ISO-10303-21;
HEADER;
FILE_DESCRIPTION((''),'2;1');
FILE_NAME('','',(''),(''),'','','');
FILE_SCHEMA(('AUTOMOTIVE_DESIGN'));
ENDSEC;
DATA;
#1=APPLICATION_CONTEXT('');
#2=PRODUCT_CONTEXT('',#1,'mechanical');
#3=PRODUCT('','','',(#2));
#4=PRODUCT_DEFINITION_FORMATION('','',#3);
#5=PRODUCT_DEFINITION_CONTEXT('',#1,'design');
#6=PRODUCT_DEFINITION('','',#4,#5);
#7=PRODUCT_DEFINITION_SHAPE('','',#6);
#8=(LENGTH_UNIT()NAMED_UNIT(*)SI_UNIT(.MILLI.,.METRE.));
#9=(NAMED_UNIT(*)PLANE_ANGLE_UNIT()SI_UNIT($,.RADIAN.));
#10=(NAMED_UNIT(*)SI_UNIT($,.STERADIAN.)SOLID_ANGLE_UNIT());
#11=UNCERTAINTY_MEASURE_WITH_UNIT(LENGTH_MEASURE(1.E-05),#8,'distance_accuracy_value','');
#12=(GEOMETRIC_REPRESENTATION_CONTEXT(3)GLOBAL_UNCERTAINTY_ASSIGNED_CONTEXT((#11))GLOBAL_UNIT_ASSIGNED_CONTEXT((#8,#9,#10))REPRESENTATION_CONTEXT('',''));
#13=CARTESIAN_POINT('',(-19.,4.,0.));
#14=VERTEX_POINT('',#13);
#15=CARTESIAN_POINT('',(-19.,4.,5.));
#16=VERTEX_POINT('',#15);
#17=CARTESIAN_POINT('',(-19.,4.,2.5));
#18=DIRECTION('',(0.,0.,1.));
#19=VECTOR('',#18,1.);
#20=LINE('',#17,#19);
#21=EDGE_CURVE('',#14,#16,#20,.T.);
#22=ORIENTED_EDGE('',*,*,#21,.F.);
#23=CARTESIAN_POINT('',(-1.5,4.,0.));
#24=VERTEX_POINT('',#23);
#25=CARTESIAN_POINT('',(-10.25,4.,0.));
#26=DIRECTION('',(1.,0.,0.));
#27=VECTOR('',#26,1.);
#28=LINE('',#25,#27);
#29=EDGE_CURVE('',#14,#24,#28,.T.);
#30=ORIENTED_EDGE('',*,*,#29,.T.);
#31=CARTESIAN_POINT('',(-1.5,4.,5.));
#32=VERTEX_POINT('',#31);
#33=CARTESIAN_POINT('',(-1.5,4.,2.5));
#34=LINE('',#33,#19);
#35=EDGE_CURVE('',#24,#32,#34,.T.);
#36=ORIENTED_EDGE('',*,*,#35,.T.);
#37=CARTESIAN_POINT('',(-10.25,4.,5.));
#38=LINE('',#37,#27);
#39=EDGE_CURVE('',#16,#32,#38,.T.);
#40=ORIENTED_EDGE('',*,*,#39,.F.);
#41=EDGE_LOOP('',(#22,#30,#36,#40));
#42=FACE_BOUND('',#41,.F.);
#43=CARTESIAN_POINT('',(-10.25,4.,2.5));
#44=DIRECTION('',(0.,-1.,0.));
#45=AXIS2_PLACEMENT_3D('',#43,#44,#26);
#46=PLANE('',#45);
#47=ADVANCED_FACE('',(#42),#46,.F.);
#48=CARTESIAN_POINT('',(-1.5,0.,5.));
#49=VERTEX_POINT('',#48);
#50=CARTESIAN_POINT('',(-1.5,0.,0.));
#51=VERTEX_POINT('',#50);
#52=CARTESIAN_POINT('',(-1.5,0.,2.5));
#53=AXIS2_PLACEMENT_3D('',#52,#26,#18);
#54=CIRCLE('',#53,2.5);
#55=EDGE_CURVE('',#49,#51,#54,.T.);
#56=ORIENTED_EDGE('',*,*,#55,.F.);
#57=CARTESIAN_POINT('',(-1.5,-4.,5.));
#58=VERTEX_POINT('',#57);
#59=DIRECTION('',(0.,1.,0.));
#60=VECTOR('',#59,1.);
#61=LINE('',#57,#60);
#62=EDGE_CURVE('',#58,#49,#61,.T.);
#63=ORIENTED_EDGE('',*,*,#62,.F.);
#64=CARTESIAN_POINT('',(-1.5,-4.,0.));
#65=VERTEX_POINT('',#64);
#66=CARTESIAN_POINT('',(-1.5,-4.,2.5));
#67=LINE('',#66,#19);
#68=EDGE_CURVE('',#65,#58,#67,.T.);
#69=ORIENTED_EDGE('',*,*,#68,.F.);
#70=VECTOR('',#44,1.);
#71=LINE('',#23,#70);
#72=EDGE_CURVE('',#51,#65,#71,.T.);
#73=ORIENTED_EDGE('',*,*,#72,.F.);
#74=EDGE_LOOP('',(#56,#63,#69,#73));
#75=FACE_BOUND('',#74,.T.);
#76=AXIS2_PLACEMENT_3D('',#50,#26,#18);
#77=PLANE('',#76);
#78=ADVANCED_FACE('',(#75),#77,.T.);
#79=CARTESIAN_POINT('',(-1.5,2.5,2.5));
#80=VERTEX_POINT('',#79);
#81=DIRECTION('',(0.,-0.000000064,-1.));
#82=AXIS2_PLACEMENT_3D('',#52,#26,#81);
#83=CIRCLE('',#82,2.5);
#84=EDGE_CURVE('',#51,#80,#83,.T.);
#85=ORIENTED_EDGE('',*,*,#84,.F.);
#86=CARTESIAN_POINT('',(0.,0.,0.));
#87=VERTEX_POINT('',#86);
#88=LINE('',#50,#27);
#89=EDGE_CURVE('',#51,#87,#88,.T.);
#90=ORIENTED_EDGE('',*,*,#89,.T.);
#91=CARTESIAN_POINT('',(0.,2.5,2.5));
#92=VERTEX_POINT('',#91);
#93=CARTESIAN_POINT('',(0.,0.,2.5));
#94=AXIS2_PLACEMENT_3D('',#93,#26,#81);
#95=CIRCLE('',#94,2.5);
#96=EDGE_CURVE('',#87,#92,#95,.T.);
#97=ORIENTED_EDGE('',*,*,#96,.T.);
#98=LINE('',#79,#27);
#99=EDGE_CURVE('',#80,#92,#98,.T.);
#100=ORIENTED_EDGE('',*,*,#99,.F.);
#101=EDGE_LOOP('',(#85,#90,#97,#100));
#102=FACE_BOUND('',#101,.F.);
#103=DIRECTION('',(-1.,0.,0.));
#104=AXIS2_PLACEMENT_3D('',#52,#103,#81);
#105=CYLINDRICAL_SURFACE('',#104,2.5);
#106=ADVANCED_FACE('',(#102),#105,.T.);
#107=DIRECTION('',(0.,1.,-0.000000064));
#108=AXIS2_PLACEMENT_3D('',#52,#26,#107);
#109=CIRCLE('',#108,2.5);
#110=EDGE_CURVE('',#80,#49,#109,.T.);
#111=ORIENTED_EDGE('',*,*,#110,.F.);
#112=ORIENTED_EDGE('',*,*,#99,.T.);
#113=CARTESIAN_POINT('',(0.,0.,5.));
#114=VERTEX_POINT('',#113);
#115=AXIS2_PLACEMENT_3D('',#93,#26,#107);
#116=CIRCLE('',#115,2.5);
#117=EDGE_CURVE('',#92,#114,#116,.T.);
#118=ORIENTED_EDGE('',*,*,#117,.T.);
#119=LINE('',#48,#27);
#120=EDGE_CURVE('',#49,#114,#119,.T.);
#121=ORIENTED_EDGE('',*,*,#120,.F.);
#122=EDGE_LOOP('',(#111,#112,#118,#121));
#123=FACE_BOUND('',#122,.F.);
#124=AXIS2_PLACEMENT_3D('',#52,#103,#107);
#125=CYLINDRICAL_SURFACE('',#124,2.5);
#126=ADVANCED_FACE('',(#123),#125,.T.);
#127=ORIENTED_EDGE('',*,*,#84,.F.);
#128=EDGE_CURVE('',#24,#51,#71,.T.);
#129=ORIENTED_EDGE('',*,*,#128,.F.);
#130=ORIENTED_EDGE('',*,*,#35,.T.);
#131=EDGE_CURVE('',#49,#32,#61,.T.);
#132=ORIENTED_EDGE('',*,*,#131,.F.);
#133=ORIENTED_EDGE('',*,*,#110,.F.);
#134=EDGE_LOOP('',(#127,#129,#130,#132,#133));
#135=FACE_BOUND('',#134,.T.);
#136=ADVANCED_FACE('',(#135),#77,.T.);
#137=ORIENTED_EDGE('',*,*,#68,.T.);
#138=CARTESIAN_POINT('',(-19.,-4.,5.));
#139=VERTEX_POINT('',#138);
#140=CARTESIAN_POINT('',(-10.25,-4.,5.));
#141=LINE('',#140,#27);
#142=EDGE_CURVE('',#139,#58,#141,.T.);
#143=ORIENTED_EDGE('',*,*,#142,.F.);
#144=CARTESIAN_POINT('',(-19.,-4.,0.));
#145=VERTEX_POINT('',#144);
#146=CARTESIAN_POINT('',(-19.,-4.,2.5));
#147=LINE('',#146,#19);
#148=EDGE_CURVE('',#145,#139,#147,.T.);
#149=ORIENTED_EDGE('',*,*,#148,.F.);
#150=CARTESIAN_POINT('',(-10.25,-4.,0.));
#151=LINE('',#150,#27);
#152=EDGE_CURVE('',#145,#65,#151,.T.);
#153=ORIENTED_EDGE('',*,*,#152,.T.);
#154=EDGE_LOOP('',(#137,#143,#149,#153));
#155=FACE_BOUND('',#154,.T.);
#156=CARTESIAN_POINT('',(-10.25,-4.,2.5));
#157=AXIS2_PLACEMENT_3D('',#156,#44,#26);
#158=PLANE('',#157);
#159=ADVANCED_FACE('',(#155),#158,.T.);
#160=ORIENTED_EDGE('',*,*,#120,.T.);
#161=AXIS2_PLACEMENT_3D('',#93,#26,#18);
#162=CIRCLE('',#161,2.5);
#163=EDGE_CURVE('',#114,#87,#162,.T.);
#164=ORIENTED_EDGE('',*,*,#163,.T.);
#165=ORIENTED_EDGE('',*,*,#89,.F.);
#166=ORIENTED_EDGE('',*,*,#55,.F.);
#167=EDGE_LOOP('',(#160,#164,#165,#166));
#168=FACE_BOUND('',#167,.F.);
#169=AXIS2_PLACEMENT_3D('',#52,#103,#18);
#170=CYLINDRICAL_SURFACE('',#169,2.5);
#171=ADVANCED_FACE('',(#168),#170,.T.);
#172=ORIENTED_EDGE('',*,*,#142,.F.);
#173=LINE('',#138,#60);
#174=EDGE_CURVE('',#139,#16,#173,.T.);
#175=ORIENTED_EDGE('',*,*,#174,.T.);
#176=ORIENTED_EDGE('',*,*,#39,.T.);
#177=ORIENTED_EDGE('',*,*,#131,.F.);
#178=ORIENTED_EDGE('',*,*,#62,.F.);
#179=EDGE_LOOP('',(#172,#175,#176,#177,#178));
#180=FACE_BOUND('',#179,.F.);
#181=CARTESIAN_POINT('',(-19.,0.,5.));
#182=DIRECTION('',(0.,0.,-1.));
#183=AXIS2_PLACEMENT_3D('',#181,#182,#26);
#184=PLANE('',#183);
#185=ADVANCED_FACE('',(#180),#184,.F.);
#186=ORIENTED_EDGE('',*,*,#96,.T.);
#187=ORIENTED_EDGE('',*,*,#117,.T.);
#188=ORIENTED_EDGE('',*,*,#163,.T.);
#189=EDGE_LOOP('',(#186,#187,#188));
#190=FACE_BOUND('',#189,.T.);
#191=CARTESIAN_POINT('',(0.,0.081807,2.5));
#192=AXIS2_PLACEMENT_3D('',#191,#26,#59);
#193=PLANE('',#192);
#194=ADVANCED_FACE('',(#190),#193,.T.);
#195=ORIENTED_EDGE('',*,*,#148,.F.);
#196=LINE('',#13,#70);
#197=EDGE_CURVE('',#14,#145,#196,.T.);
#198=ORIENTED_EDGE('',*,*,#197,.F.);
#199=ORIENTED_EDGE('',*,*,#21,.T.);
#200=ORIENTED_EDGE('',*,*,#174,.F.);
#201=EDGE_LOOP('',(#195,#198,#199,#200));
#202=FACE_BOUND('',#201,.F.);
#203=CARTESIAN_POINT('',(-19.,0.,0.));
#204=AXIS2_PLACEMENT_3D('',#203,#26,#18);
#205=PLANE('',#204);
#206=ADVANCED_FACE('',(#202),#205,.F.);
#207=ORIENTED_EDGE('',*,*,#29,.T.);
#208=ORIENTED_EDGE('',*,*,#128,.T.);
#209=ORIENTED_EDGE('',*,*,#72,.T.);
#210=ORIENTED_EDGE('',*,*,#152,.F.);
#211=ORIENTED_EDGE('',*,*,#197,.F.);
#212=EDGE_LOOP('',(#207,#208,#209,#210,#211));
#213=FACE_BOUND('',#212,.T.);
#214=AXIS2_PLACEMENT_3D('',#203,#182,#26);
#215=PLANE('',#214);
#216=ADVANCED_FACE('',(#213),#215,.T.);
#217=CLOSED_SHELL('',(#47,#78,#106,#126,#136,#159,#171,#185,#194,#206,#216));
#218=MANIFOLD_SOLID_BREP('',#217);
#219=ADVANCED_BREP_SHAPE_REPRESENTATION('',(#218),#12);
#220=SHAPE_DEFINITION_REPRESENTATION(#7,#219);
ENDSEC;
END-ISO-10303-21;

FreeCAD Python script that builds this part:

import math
import FreeCAD as App
import Part
import Sketcher
from FreeCAD import Vector
Q = App.Units.Quantity


def add_polygon(sketch, points):
    """Adds a closed chain of lines whose ends are joined by coincident constraints."""
    first, n = sketch.GeometryCount, len(points)
    for a, b in zip(points, points[1:] + points[:1]):
        sketch.addGeometry(Part.LineSegment(App.Vector(*a, 0), App.Vector(*b, 0)), False)
    for i in range(n):
        sketch.addConstraint(Sketcher.Constraint("Coincident", first + i, 2, first + (i + 1) % n, 1))

doc = App.newDocument("Part")
body = doc.addObject("PartDesign::Body", "Body")

# Sketch on XZ plane
sketch1 = body.newObject("Sketcher::SketchObject", "Sketch")
sketch1.AttachmentSupport = (doc.getObject("XZ_Plane"), [""])
sketch1.MapMode = "FlatFace"
add_polygon(sketch1, [(-19, 5), (-19, 0), (-2, 0), (-2, 5)])  # lines 0-3
sketch1.addConstraint(Sketcher.Constraint("Vertical", 0))
sketch1.addConstraint(Sketcher.Constraint("Horizontal", 1))
sketch1.addConstraint(Sketcher.Constraint("Vertical", 2))
sketch1.addConstraint(Sketcher.Constraint("Horizontal", 3))
sketch1.addConstraint(Sketcher.Constraint("PointOnObject", 0, 2, -1))
sketch1.addConstraint(Sketcher.Constraint("DistanceY", 0, 2, 0, 1, Q("5 mm")))
sketch1.addConstraint(Sketcher.Constraint("DistanceX", 1, 1, 1, 2, Q("17.5 mm")))
sketch1.addConstraint(Sketcher.Constraint("DistanceX", 0, 2, -1, 1, Q("19 mm")))
pad1 = body.newObject("PartDesign::Pad", "Pad")
pad1.Profile = sketch1
pad1.Length = 8
pad1.Midplane = True

# Sketch on YZ plane
sketch2 = body.newObject("Sketcher::SketchObject", "Sketch001")
sketch2.AttachmentSupport = (doc.getObject("YZ_Plane"), [""])
sketch2.MapMode = "FlatFace"
sketch2.AttachmentOffset = App.Placement(Vector(0, 0, -1.5), App.Rotation())
sketch2.addGeometry(Part.ArcOfCircle(Part.Circle(Vector(0, 2.5, 0), Vector(0, 0, 1), 2.5), math.radians(-90), math.radians(0)), False)
sketch2.addGeometry(Part.ArcOfCircle(Part.Circle(Vector(0, 2.5, 0), Vector(0, 0, 1), 2.5), math.radians(0), math.radians(90)), False)
sketch2.addGeometry(Part.ArcOfCircle(Part.Circle(Vector(0, 2.5, 0), Vector(0, 0, 1), 2.5), math.radians(90), math.radians(270)), False)
sketch2.addConstraint(Sketcher.Constraint("Tangent", 0, 2, 1, 1))
sketch2.addConstraint(Sketcher.Constraint("Tangent", 1, 2, 2, 1))
sketch2.addConstraint(Sketcher.Constraint("Tangent", 2, 2, 0, 1))
sketch2.addConstraint(Sketcher.Constraint("Coincident", 2, 2, -1, 1))
sketch2.addConstraint(Sketcher.Constraint("PointOnObject", 0, 3, -2))
sketch2.addConstraint(Sketcher.Constraint("PointOnObject", 1, 2, -2))
sketch2.addConstraint(Sketcher.Constraint("Horizontal", 2, 3, 0, 2))
sketch2.addConstraint(Sketcher.Constraint("Radius", 0, Q("2.5 mm")))
pad2 = body.newObject("PartDesign::Pad", "Pad001")
pad2.Profile = sketch2
pad2.Length = 1.5

doc.recompute()
